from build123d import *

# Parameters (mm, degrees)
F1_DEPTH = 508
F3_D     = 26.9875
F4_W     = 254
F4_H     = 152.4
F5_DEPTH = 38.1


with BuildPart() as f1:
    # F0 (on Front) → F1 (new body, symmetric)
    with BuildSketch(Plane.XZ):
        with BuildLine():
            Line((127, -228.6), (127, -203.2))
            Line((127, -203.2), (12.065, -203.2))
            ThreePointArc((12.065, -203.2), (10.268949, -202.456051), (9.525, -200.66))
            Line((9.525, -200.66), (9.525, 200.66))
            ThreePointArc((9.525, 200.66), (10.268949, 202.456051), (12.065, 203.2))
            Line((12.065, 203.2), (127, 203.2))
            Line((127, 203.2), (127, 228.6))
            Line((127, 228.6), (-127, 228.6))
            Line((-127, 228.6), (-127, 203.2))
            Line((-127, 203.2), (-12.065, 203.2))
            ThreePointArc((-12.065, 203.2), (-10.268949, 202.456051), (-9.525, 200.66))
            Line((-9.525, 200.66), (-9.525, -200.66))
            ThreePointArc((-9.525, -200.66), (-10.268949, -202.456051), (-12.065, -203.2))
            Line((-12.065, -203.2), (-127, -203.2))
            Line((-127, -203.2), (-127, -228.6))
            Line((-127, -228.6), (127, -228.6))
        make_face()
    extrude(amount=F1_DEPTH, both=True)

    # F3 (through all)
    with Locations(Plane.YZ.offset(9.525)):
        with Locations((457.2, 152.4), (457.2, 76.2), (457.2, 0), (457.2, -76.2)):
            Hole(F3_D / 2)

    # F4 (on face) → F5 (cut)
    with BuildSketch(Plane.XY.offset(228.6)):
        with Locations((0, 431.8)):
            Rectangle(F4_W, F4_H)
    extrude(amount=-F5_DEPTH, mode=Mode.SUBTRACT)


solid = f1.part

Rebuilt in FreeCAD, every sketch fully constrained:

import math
import FreeCAD as App
import Part
import Sketcher

V = App.Vector
Q = App.Units.Quantity

doc = App.newDocument("Part")
body = doc.addObject("PartDesign::Body", "Body")

sketch1 = body.newObject("Sketcher::SketchObject", "Sketch")
sketch1.AttachmentSupport = (doc.getObject("XZ_Plane"), [""])
sketch1.MapMode = "FlatFace"
sketch1.addGeometry([
    Part.LineSegment(V(127, -228.6, 0), V(127, -203.2, 0)),
    Part.LineSegment(V(127, -203.2, 0), V(12.1, -203.2, 0)),
    Part.ArcOfCircle(Part.Circle(V(12.1, -200.7, 0), V(0, 0, 1), 2.5), math.radians(-180), math.radians(-90)),
    Part.LineSegment(V(9.5, -200.7, 0), V(9.5, 200.7, 0)),
    Part.ArcOfCircle(Part.Circle(V(12.1, 200.7, 0), V(0, 0, 1), 2.5), math.radians(90), math.radians(180)),
    Part.LineSegment(V(12.1, 203.2, 0), V(127, 203.2, 0)),
    Part.LineSegment(V(127, 203.2, 0), V(127, 228.6, 0)),
    Part.LineSegment(V(127, 228.6, 0), V(-127, 228.6, 0)),
    Part.LineSegment(V(-127, 228.6, 0), V(-127, 203.2, 0)),
    Part.LineSegment(V(-127, 203.2, 0), V(-12.1, 203.2, 0)),
    Part.ArcOfCircle(Part.Circle(V(-12.1, 200.7, 0), V(0, 0, 1), 2.5), math.radians(0), math.radians(90)),
    Part.LineSegment(V(-9.5, 200.7, 0), V(-9.5, -200.7, 0)),
    Part.ArcOfCircle(Part.Circle(V(-12.1, -200.7, 0), V(0, 0, 1), 2.5), math.radians(-90), math.radians(0)),
    Part.LineSegment(V(-12.1, -203.2, 0), V(-127, -203.2, 0)),
    Part.LineSegment(V(-127, -203.2, 0), V(-127, -228.6, 0)),
    Part.LineSegment(V(-127, -228.6, 0), V(127, -228.6, 0)),
], False)
sketch1.addConstraint([
    Sketcher.Constraint("Coincident", 0, 2, 1, 1),
    Sketcher.Constraint("Tangent", 1, 2, 2, 2),
    Sketcher.Constraint("Tangent", 2, 1, 3, 1),
    Sketcher.Constraint("Tangent", 3, 2, 4, 2),
    Sketcher.Constraint("Tangent", 4, 1, 5, 1),
    Sketcher.Constraint("Coincident", 5, 2, 6, 1),
    Sketcher.Constraint("Coincident", 6, 2, 7, 1),
    Sketcher.Constraint("Coincident", 7, 2, 8, 1),
    Sketcher.Constraint("Coincident", 8, 2, 9, 1),
    Sketcher.Constraint("Tangent", 9, 2, 10, 2),
    Sketcher.Constraint("Tangent", 10, 1, 11, 1),
    Sketcher.Constraint("Tangent", 11, 2, 12, 2),
    Sketcher.Constraint("Tangent", 12, 1, 13, 1),
    Sketcher.Constraint("Coincident", 13, 2, 14, 1),
    Sketcher.Constraint("Coincident", 14, 2, 15, 1),
    Sketcher.Constraint("Coincident", 15, 2, 0, 1),
    Sketcher.Constraint("Vertical", 0),
    Sketcher.Constraint("Horizontal", 1),
    Sketcher.Constraint("Vertical", 3),
    Sketcher.Constraint("Horizontal", 5),
    Sketcher.Constraint("Vertical", 6),
    Sketcher.Constraint("Horizontal", 7),
    Sketcher.Constraint("Vertical", 8),
    Sketcher.Constraint("Horizontal", 9),
    Sketcher.Constraint("Vertical", 11),
    Sketcher.Constraint("Horizontal", 13),
    Sketcher.Constraint("Vertical", 14),
    Sketcher.Constraint("Horizontal", 15),
    Sketcher.Constraint("Equal", 2, 4),
    Sketcher.Constraint("Equal", 4, 10),
    Sketcher.Constraint("Equal", 10, 12),
    Sketcher.Constraint("Symmetric", 2, 3, 10, 3, -1, 1),
    Sketcher.Constraint("Symmetric", 5, 2, 13, 2, -1, 1),
    Sketcher.Constraint("Symmetric", 7, 2, 15, 2, -1, 1),
    Sketcher.Constraint("Symmetric", 5, 2, 8, 2, -2),
    Sketcher.Constraint("Radius", 2, Q("0.1 in")),
    Sketcher.Constraint("DistanceX", 7, 2, 7, 1, Q("10 in")),
    Sketcher.Constraint("DistanceY", 0, 1, 0, 2, Q("1 in")),
    Sketcher.Constraint("DistanceY", 3, 1, 3, 2, Q("15.8 in")),
    Sketcher.Constraint("DistanceX", 1, 2, 1, 1, Q("4.525 in")),
])
pad1 = body.newObject("PartDesign::Pad", "Pad")
pad1.Profile = sketch1
pad1.Length = Q("40 in")
pad1.Midplane = True

sketch2 = body.newObject("Sketcher::SketchObject", "Sketch001")
sketch2.AttachmentSupport = (doc.getObject("YZ_Plane"), [""])
sketch2.MapMode = "FlatFace"
sketch2.AttachmentOffset = App.Placement(V(0, 0, 0.375 * 25.4), App.Rotation())
sketch2.addGeometry([
    Part.Circle(V(457, 152, 0), V(0, 0, 1), 13),
    Part.Circle(V(457, 76, 0), V(0, 0, 1), 13),
    Part.Circle(V(457, 0, 0), V(0, 0, 1), 13),
    Part.Circle(V(457, -76, 0), V(0, 0, 1), 13),
], False)
sketch2.addConstraint([
    Sketcher.Constraint("Equal", 0, 1),
    Sketcher.Constraint("Equal", 1, 2),
    Sketcher.Constraint("Equal", 2, 3),
    Sketcher.Constraint("Symmetric", 1, 3, 3, 3, -1),
    Sketcher.Constraint("PointOnObject", 2, 3, -1),
    Sketcher.Constraint("Vertical", 0, 3, 1, 3),
    Sketcher.Constraint("Vertical", 1, 3, 2, 3),
    Sketcher.Constraint("Diameter", 0, Q("1.0625 in")),
    Sketcher.Constraint("DistanceX", -1, 1, 0, 3, Q("18 in")),
    Sketcher.Constraint("DistanceY", -1, 1, 0, 3, Q("6 in")),
    Sketcher.Constraint("DistanceY", -1, 1, 1, 3, Q("3 in")),
])
doc.recompute()
hole = body.newObject("PartDesign::Hole", "Hole")
hole.Profile = sketch2
hole.ThreadType = "None"
hole.Diameter = Q("1.0625 in")
hole.DepthType = "ThroughAll"

sketch3 = body.newObject("Sketcher::SketchObject", "Sketch002")
sketch3.AttachmentSupport = (doc.getObject("XY_Plane"), [""])
sketch3.MapMode = "FlatFace"
sketch3.AttachmentOffset = App.Placement(V(0, 0, 9 * 25.4), App.Rotation())
sketch3.addGeometry([
    Part.LineSegment(V(-127, 508, 0), V(-127, 356, 0)),
    Part.LineSegment(V(-127, 356, 0), V(127, 356, 0)),
    Part.LineSegment(V(127, 356, 0), V(127, 508, 0)),
    Part.LineSegment(V(127, 508, 0), V(-127, 508, 0)),
], False)
sketch3.addConstraint([
    Sketcher.Constraint("Coincident", 0, 2, 1, 1),
    Sketcher.Constraint("Coincident", 1, 2, 2, 1),
    Sketcher.Constraint("Coincident", 2, 2, 3, 1),
    Sketcher.Constraint("Coincident", 3, 2, 0, 1),
    Sketcher.Constraint("Vertical", 0),
    Sketcher.Constraint("Horizontal", 1),
    Sketcher.Constraint("Vertical", 2),
    Sketcher.Constraint("Horizontal", 3),
    Sketcher.Constraint("DistanceX", 1, 1, 1, 2, Q("10 in")),
    Sketcher.Constraint("DistanceY", 0, 2, 0, 1, Q("6 in")),
    Sketcher.Constraint("DistanceX", 0, 2, -1, 1, Q("5 in")),
    Sketcher.Constraint("DistanceY", -1, 1, 0, 2, Q("14 in")),
])
pocket1 = body.newObject("PartDesign::Pocket", "Pocket")
pocket1.Profile = sketch3
pocket1.Length = Q("1.5 in")

doc.recompute()
